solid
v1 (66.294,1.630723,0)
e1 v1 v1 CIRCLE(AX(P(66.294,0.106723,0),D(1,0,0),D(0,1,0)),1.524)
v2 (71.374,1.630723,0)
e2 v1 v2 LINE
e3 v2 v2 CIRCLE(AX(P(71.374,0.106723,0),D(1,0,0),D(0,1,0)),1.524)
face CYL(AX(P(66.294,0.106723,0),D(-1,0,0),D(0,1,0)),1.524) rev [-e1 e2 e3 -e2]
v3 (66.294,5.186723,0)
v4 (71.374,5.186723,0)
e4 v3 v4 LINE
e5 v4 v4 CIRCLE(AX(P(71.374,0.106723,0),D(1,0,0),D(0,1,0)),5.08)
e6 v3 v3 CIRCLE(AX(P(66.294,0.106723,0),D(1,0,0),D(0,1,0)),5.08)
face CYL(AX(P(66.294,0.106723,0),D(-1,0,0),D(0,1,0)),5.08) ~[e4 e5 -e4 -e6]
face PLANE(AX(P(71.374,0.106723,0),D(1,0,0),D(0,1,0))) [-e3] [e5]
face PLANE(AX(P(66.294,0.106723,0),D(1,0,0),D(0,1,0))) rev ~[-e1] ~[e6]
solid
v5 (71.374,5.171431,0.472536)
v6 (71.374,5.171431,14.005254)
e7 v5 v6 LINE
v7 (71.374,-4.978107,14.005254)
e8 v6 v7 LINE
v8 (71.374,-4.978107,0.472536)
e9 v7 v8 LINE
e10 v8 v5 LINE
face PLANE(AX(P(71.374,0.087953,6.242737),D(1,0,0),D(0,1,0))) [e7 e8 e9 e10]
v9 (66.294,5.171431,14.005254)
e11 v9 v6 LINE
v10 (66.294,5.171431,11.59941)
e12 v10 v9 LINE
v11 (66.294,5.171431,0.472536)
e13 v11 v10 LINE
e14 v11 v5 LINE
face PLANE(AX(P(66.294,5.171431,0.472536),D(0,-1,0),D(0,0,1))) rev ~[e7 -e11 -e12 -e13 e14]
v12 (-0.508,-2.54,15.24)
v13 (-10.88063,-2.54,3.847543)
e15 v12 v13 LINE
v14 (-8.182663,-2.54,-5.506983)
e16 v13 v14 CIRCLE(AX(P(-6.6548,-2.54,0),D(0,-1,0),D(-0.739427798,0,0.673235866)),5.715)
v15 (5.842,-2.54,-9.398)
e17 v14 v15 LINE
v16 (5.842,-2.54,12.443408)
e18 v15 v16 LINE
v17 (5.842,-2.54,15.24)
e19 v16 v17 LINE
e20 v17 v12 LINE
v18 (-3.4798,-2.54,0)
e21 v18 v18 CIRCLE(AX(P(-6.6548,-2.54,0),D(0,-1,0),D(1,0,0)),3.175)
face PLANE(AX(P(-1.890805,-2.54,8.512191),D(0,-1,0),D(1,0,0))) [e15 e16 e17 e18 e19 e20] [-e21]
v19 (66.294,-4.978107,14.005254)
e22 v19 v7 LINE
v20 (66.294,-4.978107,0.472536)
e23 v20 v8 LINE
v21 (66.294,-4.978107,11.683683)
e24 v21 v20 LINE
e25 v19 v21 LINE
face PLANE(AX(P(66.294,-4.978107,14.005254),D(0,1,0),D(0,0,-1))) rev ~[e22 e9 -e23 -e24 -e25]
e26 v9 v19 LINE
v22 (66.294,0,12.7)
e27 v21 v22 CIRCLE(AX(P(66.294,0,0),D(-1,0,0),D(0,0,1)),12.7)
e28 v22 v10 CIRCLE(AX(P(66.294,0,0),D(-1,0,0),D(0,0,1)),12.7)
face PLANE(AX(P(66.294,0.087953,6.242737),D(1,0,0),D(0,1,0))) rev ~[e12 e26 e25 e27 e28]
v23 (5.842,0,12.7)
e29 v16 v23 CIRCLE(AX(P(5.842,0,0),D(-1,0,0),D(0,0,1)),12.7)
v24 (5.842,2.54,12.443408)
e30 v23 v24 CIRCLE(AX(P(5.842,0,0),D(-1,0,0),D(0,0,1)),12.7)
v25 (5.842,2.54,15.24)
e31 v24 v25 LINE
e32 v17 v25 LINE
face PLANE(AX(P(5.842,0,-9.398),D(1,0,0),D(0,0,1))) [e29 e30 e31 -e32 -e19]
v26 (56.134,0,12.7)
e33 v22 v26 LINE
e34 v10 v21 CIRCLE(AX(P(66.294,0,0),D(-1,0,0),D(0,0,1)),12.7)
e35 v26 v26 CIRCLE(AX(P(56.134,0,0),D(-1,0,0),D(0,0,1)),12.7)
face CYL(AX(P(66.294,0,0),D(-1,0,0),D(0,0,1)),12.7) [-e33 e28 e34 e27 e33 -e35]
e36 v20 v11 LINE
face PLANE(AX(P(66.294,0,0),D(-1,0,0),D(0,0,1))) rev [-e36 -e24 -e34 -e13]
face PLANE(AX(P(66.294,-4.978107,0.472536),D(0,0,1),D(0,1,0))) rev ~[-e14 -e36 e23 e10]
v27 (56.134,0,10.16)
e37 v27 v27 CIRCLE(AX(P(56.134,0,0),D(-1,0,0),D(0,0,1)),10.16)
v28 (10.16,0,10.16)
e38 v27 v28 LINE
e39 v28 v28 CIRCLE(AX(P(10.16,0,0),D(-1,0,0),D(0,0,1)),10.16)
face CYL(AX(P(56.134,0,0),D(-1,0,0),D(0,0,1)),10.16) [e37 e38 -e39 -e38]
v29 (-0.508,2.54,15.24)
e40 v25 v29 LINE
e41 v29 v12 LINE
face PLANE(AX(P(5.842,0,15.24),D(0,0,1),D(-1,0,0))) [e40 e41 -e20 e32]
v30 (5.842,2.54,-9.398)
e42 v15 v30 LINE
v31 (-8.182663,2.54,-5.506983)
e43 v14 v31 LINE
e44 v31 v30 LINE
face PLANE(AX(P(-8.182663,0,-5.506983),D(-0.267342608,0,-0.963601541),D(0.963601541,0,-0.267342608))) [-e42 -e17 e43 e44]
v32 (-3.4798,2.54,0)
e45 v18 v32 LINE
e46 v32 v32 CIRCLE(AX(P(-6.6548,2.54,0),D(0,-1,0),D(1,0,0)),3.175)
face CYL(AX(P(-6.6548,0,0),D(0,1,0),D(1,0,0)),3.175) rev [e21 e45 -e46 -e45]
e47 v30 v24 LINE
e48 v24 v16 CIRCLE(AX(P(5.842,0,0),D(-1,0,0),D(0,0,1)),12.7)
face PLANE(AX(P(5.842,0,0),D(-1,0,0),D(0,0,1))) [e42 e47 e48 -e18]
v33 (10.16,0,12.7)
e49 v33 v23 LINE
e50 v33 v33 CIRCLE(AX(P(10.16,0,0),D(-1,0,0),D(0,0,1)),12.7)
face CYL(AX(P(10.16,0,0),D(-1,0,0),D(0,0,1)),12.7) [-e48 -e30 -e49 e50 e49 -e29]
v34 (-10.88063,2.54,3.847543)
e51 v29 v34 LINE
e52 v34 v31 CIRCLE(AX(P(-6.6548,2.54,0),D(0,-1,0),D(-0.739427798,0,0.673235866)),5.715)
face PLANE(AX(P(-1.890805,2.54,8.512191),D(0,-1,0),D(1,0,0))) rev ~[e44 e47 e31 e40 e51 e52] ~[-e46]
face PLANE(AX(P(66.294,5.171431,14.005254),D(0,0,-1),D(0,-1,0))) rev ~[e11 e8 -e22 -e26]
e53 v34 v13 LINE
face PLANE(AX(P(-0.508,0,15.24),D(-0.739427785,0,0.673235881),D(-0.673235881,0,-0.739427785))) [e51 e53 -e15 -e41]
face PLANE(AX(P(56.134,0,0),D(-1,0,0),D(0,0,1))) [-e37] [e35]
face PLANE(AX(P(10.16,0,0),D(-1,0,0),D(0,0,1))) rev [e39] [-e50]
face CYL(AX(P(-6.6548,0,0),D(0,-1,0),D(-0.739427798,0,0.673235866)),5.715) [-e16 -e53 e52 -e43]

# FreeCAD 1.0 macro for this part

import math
import FreeCAD as App
import Part
import Sketcher
from FreeCAD import Vector
Q = App.Units.Quantity

doc = App.newDocument("Part")
body = doc.addObject("PartDesign::Body", "Body")

# Sketch on XZ plane
sketch1 = body.newObject("Sketcher::SketchObject", "Sketch")
sketch1.AttachmentSupport = (doc.getObject("XZ_Plane"), [""])
sketch1.MapMode = "FlatFace"
sketch1.addGeometry([
    Part.LineSegment(Vector(5.8, 12.7, 0), Vector(5.8, 0, 0)),  # 0
    Part.LineSegment(Vector(5.8, 0, 0), Vector(66.3, 0, 0)),  # 1
    Part.LineSegment(Vector(66.3, 0, 0), Vector(66.3, 12.7, 0)),  # 2
    Part.LineSegment(Vector(66.3, 12.7, 0), Vector(56.1, 12.7, 0)),  # 3
    Part.LineSegment(Vector(56.1, 12.7, 0), Vector(56.1, 10.2, 0)),  # 4
    Part.LineSegment(Vector(56.1, 10.2, 0), Vector(10.2, 10.2, 0)),  # 5
    Part.LineSegment(Vector(10.2, 10.2, 0), Vector(10.2, 12.7, 0)),  # 6
    Part.LineSegment(Vector(10.2, 12.7, 0), Vector(5.8, 12.7, 0)),  # 7
], False)
sketch1.addConstraint([
    Sketcher.Constraint("Coincident", 0, 2, 1, 1),
    Sketcher.Constraint("Coincident", 1, 2, 2, 1),
    Sketcher.Constraint("Coincident", 2, 2, 3, 1),
    Sketcher.Constraint("Coincident", 3, 2, 4, 1),
    Sketcher.Constraint("Coincident", 4, 2, 5, 1),
    Sketcher.Constraint("Coincident", 5, 2, 6, 1),
    Sketcher.Constraint("Coincident", 6, 2, 7, 1),
    Sketcher.Constraint("Coincident", 7, 2, 0, 1),
    Sketcher.Constraint("Vertical", 0),
    Sketcher.Constraint("Horizontal", 1),
    Sketcher.Constraint("Vertical", 2),
    Sketcher.Constraint("Horizontal", 3),
    Sketcher.Constraint("Vertical", 4),
    Sketcher.Constraint("Horizontal", 5),
    Sketcher.Constraint("Vertical", 6),
    Sketcher.Constraint("Horizontal", 7),
    Sketcher.Constraint("PointOnObject", 0, 2, -1),
    Sketcher.Constraint("Horizontal", 3, 2, 6, 2),
    Sketcher.Constraint("DistanceX", 3, 2, 3, 1, Q("0.4 in")),
    Sketcher.Constraint("DistanceY", 0, 2, 0, 1, Q("0.5 in")),
    Sketcher.Constraint("DistanceY", 4, 2, 4, 1, Q("0.1 in")),
    Sketcher.Constraint("DistanceX", 1, 1, 1, 2, Q("2.38 in")),
    Sketcher.Constraint("DistanceX", 5, 2, 5, 1, Q("1.81 in")),
    Sketcher.Constraint("DistanceX", -1, 1, 5, 2, Q("0.4 in")),
])
revolution = body.newObject("PartDesign::Revolution", "Revolution")
revolution.Profile = sketch1
revolution.ReferenceAxis = (sketch1, ["H_Axis"])
revolution.Angle = 360

# Sketch on YZ plane
sketch2 = body.newObject("Sketcher::SketchObject", "Sketch001")
sketch2.AttachmentSupport = (doc.getObject("YZ_Plane"), [""])
sketch2.MapMode = "FlatFace"
sketch2.AttachmentOffset = App.Placement(Vector(0, 0, 2.61 * 25.4), App.Rotation())
sketch2.addGeometry([
    Part.LineSegment(Vector(-5, 0, 0), Vector(5, 0, 0)),
    Part.LineSegment(Vector(5, 0, 0), Vector(5, 14, 0)),
    Part.LineSegment(Vector(5, 14, 0), Vector(-5, 14, 0)),
    Part.LineSegment(Vector(-5, 14, 0), Vector(-5, 0, 0)),
], False)
sketch2.addConstraint([
    Sketcher.Constraint("Coincident", 0, 2, 1, 1),
    Sketcher.Constraint("Coincident", 1, 2, 2, 1),
    Sketcher.Constraint("Coincident", 2, 2, 3, 1),
    Sketcher.Constraint("Coincident", 3, 2, 0, 1),
    Sketcher.Constraint("Horizontal", 0),
    Sketcher.Constraint("Vertical", 1),
    Sketcher.Constraint("Horizontal", 2),
    Sketcher.Constraint("Vertical", 3),
    Sketcher.Constraint("DistanceY", 1, 1, 1, 2, 13.532718),
    Sketcher.Constraint("DistanceX", 0, 1, 0, 2, 10.149538),
    Sketcher.Constraint("DistanceX", -1, 1, 0, 2, 5.171431),
    Sketcher.Constraint("DistanceY", -1, 1, 0, 2, 0.472536),
])
pad1 = body.newObject("PartDesign::Pad", "Pad")
pad1.Profile = sketch2
pad1.Length = Q("0.2 in")

# Sketch on XZ plane
sketch3 = body.newObject("Sketcher::SketchObject", "Sketch002")
sketch3.AttachmentSupport = (doc.getObject("XZ_Plane"), [""])
sketch3.MapMode = "FlatFace"
sketch3.addGeometry([
    Part.LineSegment(Vector(5.8, 15.2, 0), Vector(-0.5, 15.2, 0)),  # 0
    Part.LineSegment(Vector(-0.5, 15.2, 0), Vector(-10.9, 3.8, 0)),  # 1
    Part.ArcOfCircle(Part.Circle(Vector(-6.7, 0, 0), Vector(0, 0, 1), 5.7), math.radians(138), math.radians(254)),  # 2
    Part.LineSegment(Vector(-8.2, -5.5, 0), Vector(5.8, -9.4, 0)),  # 3
    Part.LineSegment(Vector(5.8, -9.4, 0), Vector(5.8, 15.2, 0)),  # 4
    Part.Circle(Vector(-6.7, 0, 0), Vector(0, 0, 1), 3.2),  # 5
], False)
sketch3.addConstraint([
    Sketcher.Constraint("Coincident", 0, 2, 1, 1),
    Sketcher.Constraint("Tangent", 1, 2, 2, 1),
    Sketcher.Constraint("Tangent", 2, 2, 3, 1),
    Sketcher.Constraint("Coincident", 3, 2, 4, 1),
    Sketcher.Constraint("Coincident", 4, 2, 0, 1),
    Sketcher.Constraint("Horizontal", 0),
    Sketcher.Constraint("Vertical", 4),
    Sketcher.Constraint("Coincident", 5, 3, 2, 3),
    Sketcher.Constraint("PointOnObject", 2, 3, -1),
    Sketcher.Constraint("Diameter", 5, Q("0.25 in")),
    Sketcher.Constraint("Radius", 2, Q("0.225 in")),
    Sketcher.Constraint("DistanceX", 0, 2, 0, 1, Q("0.25 in")),
    Sketcher.Constraint("DistanceY", 4, 1, 4, 2, Q("0.97 in")),
    Sketcher.Constraint("DistanceY", -1, 1, 0, 2, Q("0.6 in")),
    Sketcher.Constraint("DistanceX", 0, 2, -1, 1, Q("0.02 in")),
    Sketcher.Constraint("DistanceX", 2, 3, -1, 1, Q("0.262 in")),
])
pad2 = body.newObject("PartDesign::Pad", "Pad001")
pad2.Profile = sketch3
pad2.Length = Q("0.2 in")
pad2.Midplane = True
body2 = doc.addObject("PartDesign::Body", "Body001")

# Sketch on YZ plane
sketch4 = body2.newObject("Sketcher::SketchObject", "Sketch003")
sketch4.AttachmentSupport = (doc.getObject("YZ_Plane001"), [""])
sketch4.MapMode = "FlatFace"
sketch4.AttachmentOffset = App.Placement(Vector(0, 0, 2.61 * 25.4), App.Rotation())
sketch4.addGeometry([
    Part.Circle(Vector(0.1, 0, 0), Vector(0, 0, 1), 5.1),
    Part.Circle(Vector(0.1, 0, 0), Vector(0, 0, 1), 1.5),
], False)
sketch4.addConstraint([
    Sketcher.Constraint("Coincident", 1, 3, 0, 3),
    Sketcher.Constraint("PointOnObject", 0, 3, -1),
    Sketcher.Constraint("Diameter", 0, Q("0.4 in")),
    Sketcher.Constraint("Diameter", 1, Q("0.12 in")),
    Sketcher.Constraint("DistanceX", -1, 1, 0, 3, 0.106723),
])
pad3 = body2.newObject("PartDesign::Pad", "Pad002")
pad3.Profile = sketch4
pad3.Length = Q("0.2 in")

doc.recompute()
